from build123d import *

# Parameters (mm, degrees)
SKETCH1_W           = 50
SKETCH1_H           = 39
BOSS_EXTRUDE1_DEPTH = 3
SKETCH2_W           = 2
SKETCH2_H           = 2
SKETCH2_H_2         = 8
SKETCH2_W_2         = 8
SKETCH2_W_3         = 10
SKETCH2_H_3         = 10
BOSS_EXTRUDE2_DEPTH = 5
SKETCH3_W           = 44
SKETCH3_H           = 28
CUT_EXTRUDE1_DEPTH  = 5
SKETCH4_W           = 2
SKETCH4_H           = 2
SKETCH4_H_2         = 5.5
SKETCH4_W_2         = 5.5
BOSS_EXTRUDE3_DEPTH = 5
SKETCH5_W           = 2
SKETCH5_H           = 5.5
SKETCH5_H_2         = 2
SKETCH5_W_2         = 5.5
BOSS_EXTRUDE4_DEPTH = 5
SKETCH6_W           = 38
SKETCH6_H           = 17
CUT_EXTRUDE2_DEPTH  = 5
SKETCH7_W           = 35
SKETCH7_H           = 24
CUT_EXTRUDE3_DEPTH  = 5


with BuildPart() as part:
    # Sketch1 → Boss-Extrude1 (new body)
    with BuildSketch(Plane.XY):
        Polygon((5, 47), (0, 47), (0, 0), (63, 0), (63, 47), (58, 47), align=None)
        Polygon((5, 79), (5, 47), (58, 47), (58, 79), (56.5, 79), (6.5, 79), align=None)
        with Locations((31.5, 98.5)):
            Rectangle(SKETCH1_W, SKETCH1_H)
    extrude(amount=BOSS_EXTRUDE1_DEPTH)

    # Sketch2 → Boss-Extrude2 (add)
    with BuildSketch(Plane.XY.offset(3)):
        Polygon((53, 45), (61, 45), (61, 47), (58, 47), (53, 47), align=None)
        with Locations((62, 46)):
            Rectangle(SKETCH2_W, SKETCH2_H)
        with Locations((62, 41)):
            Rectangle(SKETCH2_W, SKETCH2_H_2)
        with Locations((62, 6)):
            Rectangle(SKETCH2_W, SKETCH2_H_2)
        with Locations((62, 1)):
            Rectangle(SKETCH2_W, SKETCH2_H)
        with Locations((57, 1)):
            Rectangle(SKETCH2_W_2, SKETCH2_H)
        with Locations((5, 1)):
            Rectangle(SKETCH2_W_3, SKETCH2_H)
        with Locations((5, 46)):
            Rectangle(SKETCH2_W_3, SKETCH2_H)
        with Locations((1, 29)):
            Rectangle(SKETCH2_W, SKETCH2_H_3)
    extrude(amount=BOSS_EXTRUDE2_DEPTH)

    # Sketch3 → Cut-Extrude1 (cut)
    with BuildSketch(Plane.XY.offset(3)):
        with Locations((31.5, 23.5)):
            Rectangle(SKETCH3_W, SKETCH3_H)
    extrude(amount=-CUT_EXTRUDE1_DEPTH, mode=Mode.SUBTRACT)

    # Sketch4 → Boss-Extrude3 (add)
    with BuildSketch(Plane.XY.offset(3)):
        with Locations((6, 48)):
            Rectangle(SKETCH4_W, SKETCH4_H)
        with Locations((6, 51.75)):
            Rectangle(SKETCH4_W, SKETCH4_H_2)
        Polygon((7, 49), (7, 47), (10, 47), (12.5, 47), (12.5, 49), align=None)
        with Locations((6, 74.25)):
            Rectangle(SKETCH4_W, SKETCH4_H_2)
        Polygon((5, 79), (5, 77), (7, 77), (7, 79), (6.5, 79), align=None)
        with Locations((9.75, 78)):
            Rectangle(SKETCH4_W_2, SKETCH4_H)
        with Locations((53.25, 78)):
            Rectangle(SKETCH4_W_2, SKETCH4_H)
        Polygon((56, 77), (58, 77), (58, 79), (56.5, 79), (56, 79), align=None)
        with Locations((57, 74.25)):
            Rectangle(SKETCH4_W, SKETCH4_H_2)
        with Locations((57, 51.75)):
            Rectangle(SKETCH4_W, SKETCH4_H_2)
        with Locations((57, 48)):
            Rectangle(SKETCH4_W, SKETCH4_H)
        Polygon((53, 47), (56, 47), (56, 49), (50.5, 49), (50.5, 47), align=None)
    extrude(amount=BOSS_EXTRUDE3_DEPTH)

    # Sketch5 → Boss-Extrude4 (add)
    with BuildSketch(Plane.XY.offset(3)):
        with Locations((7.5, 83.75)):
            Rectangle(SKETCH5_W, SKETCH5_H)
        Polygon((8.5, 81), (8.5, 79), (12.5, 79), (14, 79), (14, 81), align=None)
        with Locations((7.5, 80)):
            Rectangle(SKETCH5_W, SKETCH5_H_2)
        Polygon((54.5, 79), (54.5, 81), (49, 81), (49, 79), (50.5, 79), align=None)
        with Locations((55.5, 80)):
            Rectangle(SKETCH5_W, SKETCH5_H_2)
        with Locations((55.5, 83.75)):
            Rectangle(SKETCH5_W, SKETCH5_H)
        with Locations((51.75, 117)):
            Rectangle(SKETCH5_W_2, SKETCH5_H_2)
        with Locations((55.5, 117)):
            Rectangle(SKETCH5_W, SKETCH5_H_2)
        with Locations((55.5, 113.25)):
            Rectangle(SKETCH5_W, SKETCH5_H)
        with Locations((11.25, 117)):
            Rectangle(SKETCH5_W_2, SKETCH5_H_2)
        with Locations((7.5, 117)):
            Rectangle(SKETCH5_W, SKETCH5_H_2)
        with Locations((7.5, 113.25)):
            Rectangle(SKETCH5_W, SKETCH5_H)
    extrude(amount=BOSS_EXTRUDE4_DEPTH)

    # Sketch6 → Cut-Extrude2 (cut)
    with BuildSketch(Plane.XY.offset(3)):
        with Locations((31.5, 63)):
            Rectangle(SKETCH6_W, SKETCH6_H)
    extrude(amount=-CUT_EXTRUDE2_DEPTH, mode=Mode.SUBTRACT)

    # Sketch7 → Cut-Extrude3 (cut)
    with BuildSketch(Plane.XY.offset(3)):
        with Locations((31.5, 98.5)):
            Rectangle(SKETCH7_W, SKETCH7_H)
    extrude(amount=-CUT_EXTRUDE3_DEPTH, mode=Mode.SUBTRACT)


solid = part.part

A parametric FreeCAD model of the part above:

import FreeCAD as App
import Part
import Sketcher
from FreeCAD import Vector


def add_polygon(sketch, points):
    """Adds a closed chain of lines whose ends are joined by coincident constraints."""
    first, n = sketch.GeometryCount, len(points)
    for a, b in zip(points, points[1:] + points[:1]):
        sketch.addGeometry(Part.LineSegment(App.Vector(*a, 0), App.Vector(*b, 0)), False)
    for i in range(n):
        sketch.addConstraint(Sketcher.Constraint("Coincident", first + i, 2, first + (i + 1) % n, 1))

doc = App.newDocument("Part")
body = doc.addObject("PartDesign::Body", "Body")

# Sketch on XY plane
sketch1 = body.newObject("Sketcher::SketchObject", "Sketch")
sketch1.AttachmentSupport = (doc.getObject("XY_Plane"), [""])
sketch1.MapMode = "FlatFace"
add_polygon(sketch1, [(0, 47), (0, 0), (63, 0), (63, 47), (58, 47), (58, 79), (56.5, 79), (56.5, 118), (6.5, 118), (6.5, 79), (5, 79), (5, 47)])  # lines 0-11
sketch1.addConstraint([
    Sketcher.Constraint("Vertical", 0),
    Sketcher.Constraint("Horizontal", 1),
    Sketcher.Constraint("Vertical", 2),
    Sketcher.Constraint("Horizontal", 3),
    Sketcher.Constraint("Vertical", 4),
    Sketcher.Constraint("Horizontal", 5),
    Sketcher.Constraint("Vertical", 6),
    Sketcher.Constraint("Horizontal", 7),
    Sketcher.Constraint("Vertical", 8),
    Sketcher.Constraint("Horizontal", 9),
    Sketcher.Constraint("Vertical", 10),
    Sketcher.Constraint("Horizontal", 11),
    Sketcher.Constraint("Coincident", 0, 2, -1, 1),
    Sketcher.Constraint("Horizontal", 5, 2, 8, 2),
    Sketcher.Constraint("Horizontal", 3, 2, 10, 2),
    Sketcher.Constraint("Equal", 5, 9),
    Sketcher.Constraint("Equal", 3, 11),
    Sketcher.Constraint("DistanceX", 1, 1, 1, 2, 63.0),
    Sketcher.Constraint("DistanceX", 3, 2, 3, 1, 5.0),
    Sketcher.Constraint("DistanceX", 7, 2, 7, 1, 50.0),
    Sketcher.Constraint("DistanceY", 0, 2, 0, 1, 47.0),
    Sketcher.Constraint("DistanceY", 4, 1, 4, 2, 32.0),
    Sketcher.Constraint("DistanceY", 6, 1, 6, 2, 39.0),
])
pad1 = body.newObject("PartDesign::Pad", "Pad")
pad1.Profile = sketch1
pad1.Length = 3

# Sketch on XY plane
sketch2 = body.newObject("Sketcher::SketchObject", "Sketch001")
sketch2.AttachmentSupport = (doc.getObject("XY_Plane"), [""])
sketch2.MapMode = "FlatFace"
sketch2.AttachmentOffset = App.Placement(Vector(0, 0, 3), App.Rotation())
add_polygon(sketch2, [(53, 45), (61, 45), (61, 37), (63, 37), (63, 47), (53, 47)])  # lines 0-5
add_polygon(sketch2, [(61, 10), (61, 2), (53, 2), (53, 0), (63, 0), (63, 10)])  # lines 6-11
add_polygon(sketch2, [(0, 2), (0, 0), (10, 0), (10, 2)])  # lines 12-15
add_polygon(sketch2, [(0, 47), (0, 45), (10, 45), (10, 47)])  # lines 16-19
add_polygon(sketch2, [(0, 34), (0, 24), (2, 24), (2, 34)])  # lines 20-23
sketch2.addConstraint([
    Sketcher.Constraint("Horizontal", 0),
    Sketcher.Constraint("Vertical", 1),
    Sketcher.Constraint("Horizontal", 2),
    Sketcher.Constraint("Vertical", 3),
    Sketcher.Constraint("Horizontal", 4),
    Sketcher.Constraint("Vertical", 5),
    Sketcher.Constraint("Vertical", 6),
    Sketcher.Constraint("Horizontal", 7),
    Sketcher.Constraint("Vertical", 8),
    Sketcher.Constraint("Horizontal", 9),
    Sketcher.Constraint("Vertical", 10),
    Sketcher.Constraint("Horizontal", 11),
    Sketcher.Constraint("Vertical", 12),
    Sketcher.Constraint("Horizontal", 13),
    Sketcher.Constraint("Vertical", 14),
    Sketcher.Constraint("Horizontal", 15),
    Sketcher.Constraint("Vertical", 16),
    Sketcher.Constraint("Horizontal", 17),
    Sketcher.Constraint("Vertical", 18),
    Sketcher.Constraint("Horizontal", 19),
    Sketcher.Constraint("Vertical", 20),
    Sketcher.Constraint("Horizontal", 21),
    Sketcher.Constraint("Vertical", 22),
    Sketcher.Constraint("Horizontal", 23),
    Sketcher.Constraint("Coincident", 12, 2, -1, 1),
    Sketcher.Constraint("PointOnObject", 8, 2, -1),
    Sketcher.Constraint("PointOnObject", 16, 2, -2),
    Sketcher.Constraint("PointOnObject", 20, 2, -2),
    Sketcher.Constraint("Horizontal", 7, 2, 14, 2),
    Sketcher.Constraint("Horizontal", 5, 2, 16, 2),
    Sketcher.Constraint("Horizontal", 4, 2, 18, 2),
    Sketcher.Constraint("Vertical", 1, 2, 6, 2),
    Sketcher.Constraint("Vertical", 5, 2, 7, 2),
    Sketcher.Constraint("Vertical", 3, 2, 9, 2),
    Sketcher.Constraint("Vertical", 14, 2, 17, 2),
    Sketcher.Constraint("Equal", 9, 13),
    Sketcher.Constraint("Equal", 11, 21),
    Sketcher.Constraint("Equal", 7, 1),
    Sketcher.Constraint("Equal", 19, 3),
    Sketcher.Constraint("Equal", 1, 6),
    Sketcher.Constraint("Equal", 5, 8),
    Sketcher.Constraint("Equal", 10, 20),
    Sketcher.Constraint("DistanceX", 0, 1, 0, 2, 8.0),
    Sketcher.Constraint("DistanceX", 2, 1, 2, 2, 2.0),
    Sketcher.Constraint("DistanceX", -1, 1, 0, 2, 61.0),
    Sketcher.Constraint("DistanceY", -1, 1, 0, 2, 45.0),
    Sketcher.Constraint("DistanceY", -1, 1, 20, 2, 24.0),
])
pad2 = body.newObject("PartDesign::Pad", "Pad001")
pad2.Profile = sketch2
pad2.Length = 5

# Sketch on XY plane
sketch3 = body.newObject("Sketcher::SketchObject", "Sketch002")
sketch3.AttachmentSupport = (doc.getObject("XY_Plane"), [""])
sketch3.MapMode = "FlatFace"
sketch3.AttachmentOffset = App.Placement(Vector(0, 0, 3), App.Rotation())
add_polygon(sketch3, [(9.5, 37.5), (9.5, 9.5), (53.5, 9.5), (53.5, 37.5)])  # lines 0-3
sketch3.addConstraint([
    Sketcher.Constraint("Vertical", 0),
    Sketcher.Constraint("Horizontal", 1),
    Sketcher.Constraint("Vertical", 2),
    Sketcher.Constraint("Horizontal", 3),
    Sketcher.Constraint("DistanceX", 1, 1, 1, 2, 44.0),
    Sketcher.Constraint("DistanceY", 0, 2, 0, 1, 28.0),
    Sketcher.Constraint("DistanceX", -1, 1, 0, 2, 9.5),
    Sketcher.Constraint("DistanceY", -1, 1, 0, 2, 9.5),
])
pocket1 = body.newObject("PartDesign::Pocket", "Pocket")
pocket1.Profile = sketch3
pocket1.Length = 5

# Sketch on XY plane
sketch4 = body.newObject("Sketcher::SketchObject", "Sketch003")
sketch4.AttachmentSupport = (doc.getObject("XY_Plane"), [""])
sketch4.MapMode = "FlatFace"
sketch4.AttachmentOffset = App.Placement(Vector(0, 0, 3), App.Rotation())
add_polygon(sketch4, [(5, 47), (12.5, 47), (12.5, 49), (7, 49), (7, 54.5), (5, 54.5)])  # lines 0-5
add_polygon(sketch4, [(5, 71.5), (7, 71.5), (7, 77), (12.5, 77), (12.5, 79), (5, 79)])  # lines 6-11
add_polygon(sketch4, [(50.5, 79), (50.5, 77), (56, 77), (56, 71.5), (58, 71.5), (58, 79)])  # lines 12-17
add_polygon(sketch4, [(56, 54.5), (56, 49), (50.5, 49), (50.5, 47), (58, 47), (58, 54.5)])  # lines 18-23
sketch4.addConstraint([
    Sketcher.Constraint("Horizontal", 0),
    Sketcher.Constraint("Vertical", 1),
    Sketcher.Constraint("Horizontal", 2),
    Sketcher.Constraint("Vertical", 3),
    Sketcher.Constraint("Horizontal", 4),
    Sketcher.Constraint("Vertical", 5),
    Sketcher.Constraint("Horizontal", 6),
    Sketcher.Constraint("Vertical", 7),
    Sketcher.Constraint("Horizontal", 8),
    Sketcher.Constraint("Vertical", 9),
    Sketcher.Constraint("Horizontal", 10),
    Sketcher.Constraint("Vertical", 11),
    Sketcher.Constraint("Vertical", 12),
    Sketcher.Constraint("Horizontal", 13),
    Sketcher.Constraint("Vertical", 14),
    Sketcher.Constraint("Horizontal", 15),
    Sketcher.Constraint("Vertical", 16),
    Sketcher.Constraint("Horizontal", 17),
    Sketcher.Constraint("Vertical", 18),
    Sketcher.Constraint("Horizontal", 19),
    Sketcher.Constraint("Vertical", 20),
    Sketcher.Constraint("Horizontal", 21),
    Sketcher.Constraint("Vertical", 22),
    Sketcher.Constraint("Horizontal", 23),
    Sketcher.Constraint("Horizontal", 8, 2, 12, 2),
    Sketcher.Constraint("Horizontal", 11, 2, 14, 2),
    Sketcher.Constraint("Horizontal", 10, 2, 16, 2),
    Sketcher.Constraint("Horizontal", 2, 2, 18, 2),
    Sketcher.Constraint("Horizontal", 5, 2, 20, 2),
    Sketcher.Constraint("Horizontal", 4, 2, 22, 2),
    Sketcher.Constraint("Vertical", 3, 2, 6, 2),
    Sketcher.Constraint("Vertical", 1, 2, 8, 2),
    Sketcher.Constraint("Vertical", 5, 2, 10, 2),
    Sketcher.Constraint("Vertical", 14, 2, 18, 2),
    Sketcher.Constraint("Vertical", 17, 2, 19, 2),
    Sketcher.Constraint("Vertical", 16, 2, 21, 2),
    Sketcher.Constraint("Equal", 8, 13),
    Sketcher.Constraint("Equal", 6, 15),
    Sketcher.Constraint("Equal", 23, 1),
    Sketcher.Constraint("Equal", 19, 3),
    Sketcher.Constraint("Equal", 3, 7),
    Sketcher.Constraint("Equal", 1, 9),
    Sketcher.Constraint("DistanceX", 4, 2, 4, 1, 2.0),
    Sketcher.Constraint("DistanceX", 0, 1, 0, 2, 7.5),
    Sketcher.Constraint("DistanceY", -1, 1, 0, 2, 47.0),
    Sketcher.Constraint("DistanceX", -1, 1, 2, 2, 7.0),
    Sketcher.Constraint("DistanceY", -1, 1, 7, 2, 77.0),
    Sketcher.Constraint("DistanceX", -1, 1, 13, 2, 56.0),
])
pad3 = body.newObject("PartDesign::Pad", "Pad002")
pad3.Profile = sketch4
pad3.Length = 5

# Sketch on XY plane
sketch5 = body.newObject("Sketcher::SketchObject", "Sketch004")
sketch5.AttachmentSupport = (doc.getObject("XY_Plane"), [""])
sketch5.MapMode = "FlatFace"
sketch5.AttachmentOffset = App.Placement(Vector(0, 0, 3), App.Rotation())
add_polygon(sketch5, [(6.5, 86.5), (6.5, 79), (14, 79), (14, 81), (8.5, 81), (8.5, 86.5)])  # lines 0-5
add_polygon(sketch5, [(49, 81), (49, 79), (56.5, 79), (56.5, 86.5), (54.5, 86.5), (54.5, 81)])  # lines 6-11
add_polygon(sketch5, [(49, 118), (49, 116), (54.5, 116), (54.5, 110.5), (56.5, 110.5), (56.5, 118)])  # lines 12-17
add_polygon(sketch5, [(14, 116), (14, 118), (6.5, 118), (6.5, 110.5), (8.5, 110.5), (8.5, 116)])  # lines 18-23
sketch5.addConstraint([
    Sketcher.Constraint("Vertical", 0),
    Sketcher.Constraint("Horizontal", 1),
    Sketcher.Constraint("Vertical", 2),
    Sketcher.Constraint("Horizontal", 3),
    Sketcher.Constraint("Vertical", 4),
    Sketcher.Constraint("Horizontal", 5),
    Sketcher.Constraint("Vertical", 6),
    Sketcher.Constraint("Horizontal", 7),
    Sketcher.Constraint("Vertical", 8),
    Sketcher.Constraint("Horizontal", 9),
    Sketcher.Constraint("Vertical", 10),
    Sketcher.Constraint("Horizontal", 11),
    Sketcher.Constraint("Vertical", 12),
    Sketcher.Constraint("Horizontal", 13),
    Sketcher.Constraint("Vertical", 14),
    Sketcher.Constraint("Horizontal", 15),
    Sketcher.Constraint("Vertical", 16),
    Sketcher.Constraint("Horizontal", 17),
    Sketcher.Constraint("Vertical", 18),
    Sketcher.Constraint("Horizontal", 19),
    Sketcher.Constraint("Vertical", 20),
    Sketcher.Constraint("Horizontal", 21),
    Sketcher.Constraint("Vertical", 22),
    Sketcher.Constraint("Horizontal", 23),
    Sketcher.Constraint("Horizontal", 1, 2, 6, 2),
    Sketcher.Constraint("Horizontal", 5, 2, 8, 2),
    Sketcher.Constraint("Horizontal", 3, 2, 10, 2),
    Sketcher.Constraint("Horizontal", 17, 2, 18, 2),
    Sketcher.Constraint("Horizontal", 15, 2, 20, 2),
    Sketcher.Constraint("Horizontal", 13, 2, 22, 2),
    Sketcher.Constraint("Vertical", 11, 2, 12, 2),
    Sketcher.Constraint("Vertical", 10, 2, 13, 2),
    Sketcher.Constraint("Vertical", 8, 2, 15, 2),
    Sketcher.Constraint("Vertical", 2, 2, 18, 2),
    Sketcher.Constraint("Vertical", 5, 2, 19, 2),
    Sketcher.Constraint("Vertical", 4, 2, 21, 2),
    Sketcher.Constraint("Equal", 1, 7),
    Sketcher.Constraint("Equal", 5, 9),
    Sketcher.Constraint("Equal", 19, 0),
    Sketcher.Constraint("Equal", 21, 2),
    Sketcher.Constraint("Equal", 6, 12),
    Sketcher.Constraint("Equal", 10, 14),
    Sketcher.Constraint("DistanceX", 5, 2, 5, 1, 2.0),
    Sketcher.Constraint("DistanceX", 1, 1, 1, 2, 7.5),
    Sketcher.Constraint("DistanceY", -1, 1, 0, 2, 79.0),
    Sketcher.Constraint("DistanceX", -1, 1, 1, 2, 14.0),
    Sketcher.Constraint("DistanceX", -1, 1, 6, 2, 49.0),
    Sketcher.Constraint("DistanceY", -1, 1, 12, 2, 116.0),
])
pad4 = body.newObject("PartDesign::Pad", "Pad003")
pad4.Profile = sketch5
pad4.Length = 5

# Sketch on XY plane
sketch6 = body.newObject("Sketcher::SketchObject", "Sketch005")
sketch6.AttachmentSupport = (doc.getObject("XY_Plane"), [""])
sketch6.MapMode = "FlatFace"
sketch6.AttachmentOffset = App.Placement(Vector(0, 0, 3), App.Rotation())
add_polygon(sketch6, [(12.5, 71.5), (12.5, 54.5), (50.5, 54.5), (50.5, 71.5)])  # lines 0-3
sketch6.addConstraint([
    Sketcher.Constraint("Vertical", 0),
    Sketcher.Constraint("Horizontal", 1),
    Sketcher.Constraint("Vertical", 2),
    Sketcher.Constraint("Horizontal", 3),
    Sketcher.Constraint("DistanceX", 1, 1, 1, 2, 38.0),
    Sketcher.Constraint("DistanceY", 0, 2, 0, 1, 17.0),
    Sketcher.Constraint("DistanceX", -1, 1, 0, 2, 12.5),
    Sketcher.Constraint("DistanceY", -1, 1, 0, 2, 54.5),
])
pocket2 = body.newObject("PartDesign::Pocket", "Pocket001")
pocket2.Profile = sketch6
pocket2.Length = 5

# Sketch on XY plane
sketch7 = body.newObject("Sketcher::SketchObject", "Sketch006")
sketch7.AttachmentSupport = (doc.getObject("XY_Plane"), [""])
sketch7.MapMode = "FlatFace"
sketch7.AttachmentOffset = App.Placement(Vector(0, 0, 3), App.Rotation())
add_polygon(sketch7, [(14, 110.5), (14, 86.5), (49, 86.5), (49, 110.5)])  # lines 0-3
sketch7.addConstraint([
    Sketcher.Constraint("Vertical", 0),
    Sketcher.Constraint("Horizontal", 1),
    Sketcher.Constraint("Vertical", 2),
    Sketcher.Constraint("Horizontal", 3),
    Sketcher.Constraint("DistanceX", 1, 1, 1, 2, 35.0),
    Sketcher.Constraint("DistanceY", 0, 2, 0, 1, 24.0),
    Sketcher.Constraint("DistanceX", -1, 1, 0, 2, 14.0),
    Sketcher.Constraint("DistanceY", -1, 1, 0, 2, 86.5),
])
pocket3 = body.newObject("PartDesign::Pocket", "Pocket002")
pocket3.Profile = sketch7
pocket3.Length = 5

doc.recompute()
